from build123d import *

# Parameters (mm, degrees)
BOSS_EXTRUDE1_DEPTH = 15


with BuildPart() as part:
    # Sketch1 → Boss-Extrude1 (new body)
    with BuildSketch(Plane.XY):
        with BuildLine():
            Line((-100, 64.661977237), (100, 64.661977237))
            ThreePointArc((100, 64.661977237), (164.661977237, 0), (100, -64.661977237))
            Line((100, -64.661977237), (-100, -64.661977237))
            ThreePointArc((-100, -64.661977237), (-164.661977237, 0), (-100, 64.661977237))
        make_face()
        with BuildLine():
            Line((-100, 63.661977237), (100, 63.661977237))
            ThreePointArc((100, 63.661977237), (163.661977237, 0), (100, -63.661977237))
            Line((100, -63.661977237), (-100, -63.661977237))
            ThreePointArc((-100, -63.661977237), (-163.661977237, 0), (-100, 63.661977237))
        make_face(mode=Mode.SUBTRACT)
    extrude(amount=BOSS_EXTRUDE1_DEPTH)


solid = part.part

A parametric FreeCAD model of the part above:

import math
import FreeCAD as App
import Part
import Sketcher

doc = App.newDocument("Part")
body = doc.addObject("PartDesign::Body", "Body")

# Sketch on XY plane
sketch1 = body.newObject("Sketcher::SketchObject", "Sketch")
sketch1.AttachmentSupport = (doc.getObject("XY_Plane"), [""])
sketch1.MapMode = "FlatFace"
sketch1.addGeometry([
    Part.LineSegment(App.Vector(100, 64.661977, 0), App.Vector(-100, 64.661977, 0)),  # 0
    Part.ArcOfCircle(Part.Circle(App.Vector(-100, 0, 0), App.Vector(0, 0, 1), 64.661977), math.radians(90), math.radians(270)),  # 1
    Part.LineSegment(App.Vector(-100, -64.661977, 0), App.Vector(100, -64.661977, 0)),  # 2
    Part.ArcOfCircle(Part.Circle(App.Vector(100, 0, 0), App.Vector(0, 0, 1), 64.661977), math.radians(-90), math.radians(90)),  # 3
    Part.LineSegment(App.Vector(-100, 63.661977, 0), App.Vector(100, 63.661977, 0)),  # 4
    Part.ArcOfCircle(Part.Circle(App.Vector(100, 0, 0), App.Vector(0, 0, 1), 63.661977), math.radians(-90), math.radians(90)),  # 5
    Part.LineSegment(App.Vector(100, -63.661977, 0), App.Vector(-100, -63.661977, 0)),  # 6
    Part.ArcOfCircle(Part.Circle(App.Vector(-100, 0, 0), App.Vector(0, 0, 1), 63.661977), math.radians(90), math.radians(270)),  # 7
], False)
sketch1.addConstraint([
    Sketcher.Constraint("Tangent", 0, 2, 1, 1),
    Sketcher.Constraint("Tangent", 1, 2, 2, 1),
    Sketcher.Constraint("Tangent", 2, 2, 3, 1),
    Sketcher.Constraint("Tangent", 3, 2, 0, 1),
    Sketcher.Constraint("Tangent", 4, 2, 5, 2),
    Sketcher.Constraint("Tangent", 5, 1, 6, 1),
    Sketcher.Constraint("Tangent", 6, 2, 7, 2),
    Sketcher.Constraint("Tangent", 7, 1, 4, 1),
    Sketcher.Constraint("Horizontal", 0),
    Sketcher.Constraint("Horizontal", 2),
    Sketcher.Constraint("Horizontal", 4),
    Sketcher.Constraint("Horizontal", 6),
    Sketcher.Constraint("Coincident", 5, 3, 3, 3),
    Sketcher.Constraint("Symmetric", 1, 3, 3, 3, -1, 1),
    Sketcher.Constraint("Vertical", 7, 3, 0, 2),
    Sketcher.Constraint("DistanceX", 0, 2, 0, 1, 200.0),
    Sketcher.Constraint("DistanceY", 4, 2, 3, 2, 1.0),
    Sketcher.Constraint("Radius", 1, 64.661977),
])
pad1 = body.newObject("PartDesign::Pad", "Pad")
pad1.Profile = sketch1
pad1.Length = 15

doc.recompute()
